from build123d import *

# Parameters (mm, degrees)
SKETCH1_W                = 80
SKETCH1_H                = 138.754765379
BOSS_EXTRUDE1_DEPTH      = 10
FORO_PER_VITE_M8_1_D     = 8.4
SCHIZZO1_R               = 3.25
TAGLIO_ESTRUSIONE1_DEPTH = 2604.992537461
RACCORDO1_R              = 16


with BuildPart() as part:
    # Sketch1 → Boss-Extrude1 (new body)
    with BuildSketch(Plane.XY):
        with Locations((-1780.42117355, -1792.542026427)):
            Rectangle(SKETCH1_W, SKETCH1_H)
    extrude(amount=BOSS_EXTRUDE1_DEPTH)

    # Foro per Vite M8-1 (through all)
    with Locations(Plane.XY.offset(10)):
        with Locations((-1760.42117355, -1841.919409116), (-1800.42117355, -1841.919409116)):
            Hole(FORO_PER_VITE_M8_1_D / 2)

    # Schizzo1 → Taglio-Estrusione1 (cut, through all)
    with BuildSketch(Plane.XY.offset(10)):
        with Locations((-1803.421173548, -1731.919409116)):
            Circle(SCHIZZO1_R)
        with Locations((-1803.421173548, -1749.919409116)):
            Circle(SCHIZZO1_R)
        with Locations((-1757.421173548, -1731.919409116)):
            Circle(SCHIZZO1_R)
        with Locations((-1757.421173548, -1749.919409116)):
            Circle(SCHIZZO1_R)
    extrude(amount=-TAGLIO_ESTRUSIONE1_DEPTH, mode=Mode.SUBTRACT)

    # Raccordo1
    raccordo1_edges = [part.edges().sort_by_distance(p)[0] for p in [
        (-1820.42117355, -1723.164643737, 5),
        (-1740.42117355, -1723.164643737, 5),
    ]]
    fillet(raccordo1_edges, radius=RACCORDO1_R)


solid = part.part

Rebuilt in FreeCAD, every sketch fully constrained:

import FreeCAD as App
import Part
import Sketcher
from FreeCAD import Vector
Q = App.Units.Quantity


def edges_at(feature, points):
    """Names of the edges that pass closest to the given points."""
    edges = feature.Shape.Edges
    near = lambda p: min(range(len(edges)), key=lambda i: edges[i].distToShape(Part.Vertex(*p))[0])
    return sorted({f"Edge{near(p) + 1}" for p in points})


def add_polygon(sketch, points):
    """Adds a closed chain of lines whose ends are joined by coincident constraints."""
    first, n = sketch.GeometryCount, len(points)
    for a, b in zip(points, points[1:] + points[:1]):
        sketch.addGeometry(Part.LineSegment(App.Vector(*a, 0), App.Vector(*b, 0)), False)
    for i in range(n):
        sketch.addConstraint(Sketcher.Constraint("Coincident", first + i, 2, first + (i + 1) % n, 1))

doc = App.newDocument("Part")
body = doc.addObject("PartDesign::Body", "Body")

# Sketch on XY plane
sketch1 = body.newObject("Sketcher::SketchObject", "Sketch")
sketch1.AttachmentSupport = (doc.getObject("XY_Plane"), [""])
sketch1.MapMode = "FlatFace"
add_polygon(sketch1, [(-1820.421174, -1723.164644), (-1820.421174, -1861.919409), (-1740.421174, -1861.919409), (-1740.421174, -1723.164644)])  # lines 0-3
sketch1.addConstraint(Sketcher.Constraint("Vertical", 0))
sketch1.addConstraint(Sketcher.Constraint("Horizontal", 1))
sketch1.addConstraint(Sketcher.Constraint("Vertical", 2))
sketch1.addConstraint(Sketcher.Constraint("Horizontal", 3))
sketch1.addConstraint(Sketcher.Constraint("DistanceX", 1, 1, 1, 2, Q("80 mm")))
sketch1.addConstraint(Sketcher.Constraint("DistanceY", 0, 2, 0, 1, Q("138.754765 mm")))
sketch1.addConstraint(Sketcher.Constraint("DistanceY", 0, 2, -1, 1, Q("1861.919409 mm")))
sketch1.addConstraint(Sketcher.Constraint("DistanceX", 0, 2, -1, 1, Q("1820.421174 mm")))
pad1 = body.newObject("PartDesign::Pad", "Pad")
pad1.Profile = sketch1
pad1.Length = 10

# Sketch on XY plane
sketch2 = body.newObject("Sketcher::SketchObject", "Sketch001")
sketch2.AttachmentSupport = (doc.getObject("XY_Plane"), [""])
sketch2.MapMode = "FlatFace"
sketch2.AttachmentOffset = App.Placement(Vector(0, 0, 10), App.Rotation())
sketch2.addGeometry(Part.Circle(Vector(-1760.421174, -1841.919409, 0), Vector(0, 0, 1), 4.2), False)
sketch2.addGeometry(Part.Circle(Vector(-1800.421174, -1841.919409, 0), Vector(0, 0, 1), 4.2), False)
sketch2.addConstraint(Sketcher.Constraint("Equal", 0, 1))
sketch2.addConstraint(Sketcher.Constraint("Horizontal", 0, 3, 1, 3))
sketch2.addConstraint(Sketcher.Constraint("Diameter", 0, Q("8.4 mm")))
sketch2.addConstraint(Sketcher.Constraint("DistanceX", 1, 3, 0, 3, Q("40 mm")))
sketch2.addConstraint(Sketcher.Constraint("DistanceY", 0, 3, -1, 1, Q("1841.919409 mm")))
sketch2.addConstraint(Sketcher.Constraint("DistanceX", 0, 3, -1, 1, Q("1760.421174 mm")))
doc.recompute()
hole = body.newObject("PartDesign::Hole", "Hole")
hole.Profile = sketch2
hole.ThreadType = "None"
hole.Diameter = 8.4
hole.DepthType = "ThroughAll"

# Sketch on XY plane
sketch3 = body.newObject("Sketcher::SketchObject", "Sketch002")
sketch3.AttachmentSupport = (doc.getObject("XY_Plane"), [""])
sketch3.MapMode = "FlatFace"
sketch3.AttachmentOffset = App.Placement(Vector(0, 0, 10), App.Rotation())
sketch3.addGeometry(Part.Circle(Vector(-1803.421174, -1731.919409, 0), Vector(0, 0, 1), 3.25), False)
sketch3.addGeometry(Part.Circle(Vector(-1803.421174, -1749.919409, 0), Vector(0, 0, 1), 3.25), False)
sketch3.addGeometry(Part.Circle(Vector(-1757.421174, -1731.919409, 0), Vector(0, 0, 1), 3.25), False)
sketch3.addGeometry(Part.Circle(Vector(-1757.421174, -1749.919409, 0), Vector(0, 0, 1), 3.25), False)
sketch3.addConstraint(Sketcher.Constraint("Equal", 0, 1))
sketch3.addConstraint(Sketcher.Constraint("Equal", 1, 2))
sketch3.addConstraint(Sketcher.Constraint("Equal", 2, 3))
sketch3.addConstraint(Sketcher.Constraint("Horizontal", 0, 3, 2, 3))
sketch3.addConstraint(Sketcher.Constraint("Horizontal", 1, 3, 3, 3))
sketch3.addConstraint(Sketcher.Constraint("Vertical", 0, 3, 1, 3))
sketch3.addConstraint(Sketcher.Constraint("Vertical", 2, 3, 3, 3))
sketch3.addConstraint(Sketcher.Constraint("Diameter", 0, Q("6.5 mm")))
sketch3.addConstraint(Sketcher.Constraint("DistanceY", 1, 3, 0, 3, Q("18 mm")))
sketch3.addConstraint(Sketcher.Constraint("DistanceX", 0, 3, 2, 3, Q("46 mm")))
sketch3.addConstraint(Sketcher.Constraint("DistanceY", 0, 3, -1, 1, Q("1731.919409 mm")))
sketch3.addConstraint(Sketcher.Constraint("DistanceX", 0, 3, -1, 1, Q("1803.421174 mm")))
pocket1 = body.newObject("PartDesign::Pocket", "Pocket")
pocket1.Profile = sketch3
pocket1.Type = "ThroughAll"
doc.recompute()

fillet = body.newObject("PartDesign::Fillet", "Fillet")
fillet.Base = (pocket1, edges_at(pocket1, [(-1820.421, -1723.165, 5), (-1740.421, -1723.165, 5)]))
fillet.Radius = 16

doc.recompute()
